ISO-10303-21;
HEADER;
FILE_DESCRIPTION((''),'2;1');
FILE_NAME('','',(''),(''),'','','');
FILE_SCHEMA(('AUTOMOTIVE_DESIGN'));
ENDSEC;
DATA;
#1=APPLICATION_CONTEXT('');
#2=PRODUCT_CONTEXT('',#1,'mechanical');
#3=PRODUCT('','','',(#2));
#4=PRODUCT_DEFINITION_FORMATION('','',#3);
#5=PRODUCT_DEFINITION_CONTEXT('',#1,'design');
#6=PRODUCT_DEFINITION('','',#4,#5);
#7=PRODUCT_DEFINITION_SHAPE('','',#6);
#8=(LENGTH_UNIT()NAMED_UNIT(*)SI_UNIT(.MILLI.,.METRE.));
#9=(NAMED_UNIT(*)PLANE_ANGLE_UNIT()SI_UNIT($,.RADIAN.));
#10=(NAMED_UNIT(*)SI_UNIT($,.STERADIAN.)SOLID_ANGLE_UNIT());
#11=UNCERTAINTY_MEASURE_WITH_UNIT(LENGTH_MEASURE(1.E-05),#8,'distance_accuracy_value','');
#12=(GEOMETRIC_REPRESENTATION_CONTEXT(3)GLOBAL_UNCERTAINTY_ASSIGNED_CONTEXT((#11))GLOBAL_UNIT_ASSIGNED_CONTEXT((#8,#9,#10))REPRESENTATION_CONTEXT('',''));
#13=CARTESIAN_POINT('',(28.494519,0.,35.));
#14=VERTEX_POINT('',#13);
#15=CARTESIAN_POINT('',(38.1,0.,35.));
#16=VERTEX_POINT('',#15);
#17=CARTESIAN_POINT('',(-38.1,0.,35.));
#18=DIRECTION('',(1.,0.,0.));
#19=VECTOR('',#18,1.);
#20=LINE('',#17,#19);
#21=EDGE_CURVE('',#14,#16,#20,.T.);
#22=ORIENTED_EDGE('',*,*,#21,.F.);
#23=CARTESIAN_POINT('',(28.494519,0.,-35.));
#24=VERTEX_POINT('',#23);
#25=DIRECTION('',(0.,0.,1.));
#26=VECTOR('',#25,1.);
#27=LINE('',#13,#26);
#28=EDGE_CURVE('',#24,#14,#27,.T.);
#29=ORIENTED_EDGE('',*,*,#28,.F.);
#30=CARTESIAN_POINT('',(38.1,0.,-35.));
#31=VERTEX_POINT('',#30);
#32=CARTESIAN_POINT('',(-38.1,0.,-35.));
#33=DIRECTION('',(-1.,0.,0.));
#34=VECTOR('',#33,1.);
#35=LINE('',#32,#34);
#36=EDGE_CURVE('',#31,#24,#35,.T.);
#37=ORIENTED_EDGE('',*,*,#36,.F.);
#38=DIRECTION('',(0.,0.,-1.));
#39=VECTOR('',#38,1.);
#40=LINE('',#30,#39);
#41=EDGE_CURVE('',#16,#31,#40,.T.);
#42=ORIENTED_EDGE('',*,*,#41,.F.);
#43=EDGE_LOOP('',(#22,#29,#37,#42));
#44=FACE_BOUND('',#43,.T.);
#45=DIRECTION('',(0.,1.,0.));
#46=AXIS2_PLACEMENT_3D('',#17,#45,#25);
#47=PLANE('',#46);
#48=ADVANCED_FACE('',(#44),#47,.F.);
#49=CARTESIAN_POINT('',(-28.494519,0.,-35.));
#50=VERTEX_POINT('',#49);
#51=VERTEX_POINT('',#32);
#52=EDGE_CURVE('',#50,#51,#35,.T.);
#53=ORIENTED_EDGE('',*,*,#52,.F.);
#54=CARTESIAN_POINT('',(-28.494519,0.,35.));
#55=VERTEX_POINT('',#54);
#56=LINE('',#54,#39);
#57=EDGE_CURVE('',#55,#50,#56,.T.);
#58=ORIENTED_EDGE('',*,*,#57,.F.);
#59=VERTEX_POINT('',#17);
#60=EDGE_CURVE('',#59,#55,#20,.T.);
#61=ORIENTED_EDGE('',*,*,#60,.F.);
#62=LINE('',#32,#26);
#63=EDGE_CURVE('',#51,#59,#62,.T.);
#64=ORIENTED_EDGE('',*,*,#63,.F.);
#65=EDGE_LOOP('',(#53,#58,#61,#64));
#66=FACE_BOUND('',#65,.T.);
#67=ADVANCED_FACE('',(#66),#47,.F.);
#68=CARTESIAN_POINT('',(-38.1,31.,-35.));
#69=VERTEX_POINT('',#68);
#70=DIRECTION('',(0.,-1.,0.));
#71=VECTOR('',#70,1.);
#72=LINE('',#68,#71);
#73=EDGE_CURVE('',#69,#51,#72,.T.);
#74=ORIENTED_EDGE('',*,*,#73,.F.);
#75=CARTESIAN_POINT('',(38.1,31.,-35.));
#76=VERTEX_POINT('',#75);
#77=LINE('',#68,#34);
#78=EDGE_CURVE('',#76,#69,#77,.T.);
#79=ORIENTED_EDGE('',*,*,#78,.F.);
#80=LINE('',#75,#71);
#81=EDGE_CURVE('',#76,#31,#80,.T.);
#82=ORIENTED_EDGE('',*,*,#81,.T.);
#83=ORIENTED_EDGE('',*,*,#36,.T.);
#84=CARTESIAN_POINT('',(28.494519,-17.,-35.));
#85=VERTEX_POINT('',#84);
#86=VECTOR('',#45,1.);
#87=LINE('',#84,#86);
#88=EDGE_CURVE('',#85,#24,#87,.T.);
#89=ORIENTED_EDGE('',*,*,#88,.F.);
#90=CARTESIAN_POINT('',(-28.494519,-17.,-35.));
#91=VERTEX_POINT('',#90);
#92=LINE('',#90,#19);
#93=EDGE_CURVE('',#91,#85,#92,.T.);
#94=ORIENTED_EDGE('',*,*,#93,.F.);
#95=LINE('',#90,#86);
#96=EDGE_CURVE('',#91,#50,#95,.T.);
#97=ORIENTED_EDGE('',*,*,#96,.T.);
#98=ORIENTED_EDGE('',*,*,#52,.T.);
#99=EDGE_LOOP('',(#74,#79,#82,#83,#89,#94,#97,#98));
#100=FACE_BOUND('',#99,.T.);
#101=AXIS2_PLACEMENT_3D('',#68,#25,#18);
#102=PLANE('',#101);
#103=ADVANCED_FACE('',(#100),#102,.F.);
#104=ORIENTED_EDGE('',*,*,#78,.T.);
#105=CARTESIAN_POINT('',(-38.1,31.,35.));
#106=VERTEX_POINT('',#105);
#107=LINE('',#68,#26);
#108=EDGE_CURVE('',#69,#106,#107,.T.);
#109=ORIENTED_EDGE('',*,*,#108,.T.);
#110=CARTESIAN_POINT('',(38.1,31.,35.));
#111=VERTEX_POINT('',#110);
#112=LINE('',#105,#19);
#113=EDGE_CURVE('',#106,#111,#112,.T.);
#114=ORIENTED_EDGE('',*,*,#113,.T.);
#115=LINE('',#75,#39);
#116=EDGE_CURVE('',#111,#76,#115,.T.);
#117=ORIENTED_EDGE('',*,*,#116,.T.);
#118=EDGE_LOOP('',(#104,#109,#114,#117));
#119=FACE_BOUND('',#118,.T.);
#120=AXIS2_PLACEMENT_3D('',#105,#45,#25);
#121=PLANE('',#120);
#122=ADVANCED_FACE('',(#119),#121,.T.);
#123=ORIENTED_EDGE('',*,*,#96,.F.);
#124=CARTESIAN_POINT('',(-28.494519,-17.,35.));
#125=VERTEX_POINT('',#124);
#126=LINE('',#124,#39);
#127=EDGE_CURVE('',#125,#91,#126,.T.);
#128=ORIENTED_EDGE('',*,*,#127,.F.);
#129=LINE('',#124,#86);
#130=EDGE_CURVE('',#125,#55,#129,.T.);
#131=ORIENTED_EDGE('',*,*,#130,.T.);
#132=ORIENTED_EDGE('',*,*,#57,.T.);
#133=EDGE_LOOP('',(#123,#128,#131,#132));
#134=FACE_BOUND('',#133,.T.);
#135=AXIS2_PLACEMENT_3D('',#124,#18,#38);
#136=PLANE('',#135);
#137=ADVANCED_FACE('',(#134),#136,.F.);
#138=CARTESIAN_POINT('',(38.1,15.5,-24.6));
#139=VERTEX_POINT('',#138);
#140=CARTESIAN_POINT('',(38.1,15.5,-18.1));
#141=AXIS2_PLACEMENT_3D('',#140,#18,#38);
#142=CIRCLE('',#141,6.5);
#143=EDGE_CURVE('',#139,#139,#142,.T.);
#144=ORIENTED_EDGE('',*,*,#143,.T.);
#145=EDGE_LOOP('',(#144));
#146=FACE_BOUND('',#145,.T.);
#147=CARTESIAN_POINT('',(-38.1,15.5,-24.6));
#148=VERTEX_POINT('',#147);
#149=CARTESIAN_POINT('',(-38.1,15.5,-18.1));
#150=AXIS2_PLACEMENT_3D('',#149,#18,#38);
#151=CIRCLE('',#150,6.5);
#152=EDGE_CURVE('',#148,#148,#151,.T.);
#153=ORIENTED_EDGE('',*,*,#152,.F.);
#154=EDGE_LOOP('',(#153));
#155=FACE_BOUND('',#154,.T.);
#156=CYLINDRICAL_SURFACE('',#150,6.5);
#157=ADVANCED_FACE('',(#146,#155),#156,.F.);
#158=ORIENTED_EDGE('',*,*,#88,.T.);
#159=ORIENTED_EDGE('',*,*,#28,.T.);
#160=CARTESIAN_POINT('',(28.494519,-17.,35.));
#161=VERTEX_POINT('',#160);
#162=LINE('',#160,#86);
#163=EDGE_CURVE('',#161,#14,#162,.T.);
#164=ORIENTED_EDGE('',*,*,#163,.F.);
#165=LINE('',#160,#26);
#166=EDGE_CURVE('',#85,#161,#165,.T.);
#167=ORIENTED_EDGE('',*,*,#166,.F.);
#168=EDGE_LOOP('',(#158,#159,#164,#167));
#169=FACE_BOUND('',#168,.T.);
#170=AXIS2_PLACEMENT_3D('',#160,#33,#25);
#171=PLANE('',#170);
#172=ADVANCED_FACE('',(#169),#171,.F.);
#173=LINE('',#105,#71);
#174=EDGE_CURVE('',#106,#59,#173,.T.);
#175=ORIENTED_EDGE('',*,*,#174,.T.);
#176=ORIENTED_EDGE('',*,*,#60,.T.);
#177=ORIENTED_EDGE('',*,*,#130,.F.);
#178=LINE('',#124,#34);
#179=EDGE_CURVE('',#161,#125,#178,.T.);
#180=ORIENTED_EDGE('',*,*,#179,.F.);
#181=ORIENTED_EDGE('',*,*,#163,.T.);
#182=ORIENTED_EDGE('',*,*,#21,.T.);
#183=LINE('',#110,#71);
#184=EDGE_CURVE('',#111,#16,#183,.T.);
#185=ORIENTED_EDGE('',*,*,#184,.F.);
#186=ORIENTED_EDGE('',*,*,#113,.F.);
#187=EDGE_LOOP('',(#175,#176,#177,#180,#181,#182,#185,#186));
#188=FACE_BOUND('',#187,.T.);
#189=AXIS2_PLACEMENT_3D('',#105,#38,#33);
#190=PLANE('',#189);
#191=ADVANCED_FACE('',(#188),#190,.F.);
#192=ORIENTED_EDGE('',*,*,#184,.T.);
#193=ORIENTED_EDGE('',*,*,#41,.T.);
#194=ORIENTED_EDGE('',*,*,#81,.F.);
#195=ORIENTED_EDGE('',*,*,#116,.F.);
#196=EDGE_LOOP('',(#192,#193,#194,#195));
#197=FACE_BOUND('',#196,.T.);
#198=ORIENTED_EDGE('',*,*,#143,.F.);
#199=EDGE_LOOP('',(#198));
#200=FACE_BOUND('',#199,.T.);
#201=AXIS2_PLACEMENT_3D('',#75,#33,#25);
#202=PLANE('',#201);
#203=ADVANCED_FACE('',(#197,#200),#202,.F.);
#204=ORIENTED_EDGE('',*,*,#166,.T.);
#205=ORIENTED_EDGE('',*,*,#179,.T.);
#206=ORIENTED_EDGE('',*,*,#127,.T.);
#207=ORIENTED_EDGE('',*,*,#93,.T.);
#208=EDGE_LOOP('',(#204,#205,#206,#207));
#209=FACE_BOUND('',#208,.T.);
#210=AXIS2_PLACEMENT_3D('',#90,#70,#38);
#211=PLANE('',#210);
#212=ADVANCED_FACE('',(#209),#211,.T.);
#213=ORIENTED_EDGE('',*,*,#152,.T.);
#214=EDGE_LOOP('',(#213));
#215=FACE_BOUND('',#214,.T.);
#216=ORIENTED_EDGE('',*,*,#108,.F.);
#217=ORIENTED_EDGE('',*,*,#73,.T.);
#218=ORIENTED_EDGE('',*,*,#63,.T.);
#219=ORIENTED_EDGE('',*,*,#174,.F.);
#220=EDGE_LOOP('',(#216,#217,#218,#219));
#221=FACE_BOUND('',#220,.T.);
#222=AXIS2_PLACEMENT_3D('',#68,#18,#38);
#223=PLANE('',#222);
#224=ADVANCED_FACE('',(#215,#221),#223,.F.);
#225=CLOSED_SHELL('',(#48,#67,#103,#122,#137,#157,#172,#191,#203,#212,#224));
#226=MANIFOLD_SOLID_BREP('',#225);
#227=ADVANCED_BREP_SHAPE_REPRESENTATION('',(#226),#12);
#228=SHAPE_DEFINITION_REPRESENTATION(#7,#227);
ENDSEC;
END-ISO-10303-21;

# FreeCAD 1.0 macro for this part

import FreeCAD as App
import Part
import Sketcher

V = App.Vector
Q = App.Units.Quantity

doc = App.newDocument("Part")
params = doc.addObject("Spreadsheet::Sheet", "Params")
for row, (alias, value) in enumerate([
    ("sketch1_height", "70 mm"),
    ("sketch1_width", "76.2 mm"),
    ("pad1_length", "31 mm"),
    ("sketch2_diameter", "13 mm"),
    ("sketch3_height", "70 mm"),
    ("pad2_length", "17 mm"),
], start=1):
    params.set(f"A{row}", alias)
    params.set(f"B{row}", "=" + value)
    params.setAlias(f"B{row}", alias)

body = doc.addObject("PartDesign::Body", "Body")

sketch1 = body.newObject("Sketcher::SketchObject", "Sketch")
sketch1.AttachmentSupport = (doc.getObject("XZ_Plane"), [""])
sketch1.MapMode = "FlatFace"
sketch1.addGeometry([
    Part.LineSegment(V(-38, -35, 0), V(-38, 35, 0)),
    Part.LineSegment(V(-38, 35, 0), V(38, 35, 0)),
    Part.LineSegment(V(38, 35, 0), V(38, -35, 0)),
    Part.LineSegment(V(38, -35, 0), V(-38, -35, 0)),
], False)
sketch1.addConstraint([
    Sketcher.Constraint("Coincident", 0, 2, 1, 1),
    Sketcher.Constraint("Coincident", 1, 2, 2, 1),
    Sketcher.Constraint("Coincident", 2, 2, 3, 1),
    Sketcher.Constraint("Coincident", 3, 2, 0, 1),
    Sketcher.Constraint("Vertical", 0),
    Sketcher.Constraint("Horizontal", 1),
    Sketcher.Constraint("Vertical", 2),
    Sketcher.Constraint("Horizontal", 3),
    Sketcher.Constraint("Symmetric", 0, 2, 2, 2, -1, 1),
    Sketcher.Constraint("DistanceY", 0, 1, 0, 2, Q("70 mm")),
    Sketcher.Constraint("DistanceX", 1, 1, 1, 2, Q("76.2 mm")),
])
sketch1.setExpression("Constraints[9]", "Params.sketch1_height")
sketch1.setExpression("Constraints[10]", "Params.sketch1_width")
pad1 = body.newObject("PartDesign::Pad", "Pad")
pad1.Profile = sketch1
pad1.setExpression("Length", "Params.pad1_length")
pad1.Reversed = True

sketch2 = body.newObject("Sketcher::SketchObject", "Sketch001")
sketch2.AttachmentSupport = (doc.getObject("YZ_Plane"), [""])
sketch2.MapMode = "FlatFace"
sketch2.AttachmentOffset = App.Placement(V(0, 0, 38.1), App.Rotation())
sketch2.addGeometry(Part.Circle(V(16, -18, 0), V(0, 0, 1), 6), False)
sketch2.addConstraint([
    Sketcher.Constraint("Diameter", 0, Q("13 mm")),
    Sketcher.Constraint("DistanceX", -1, 1, 0, 3, Q("15.5 mm")),
    Sketcher.Constraint("DistanceY", 0, 3, -1, 1, Q("18.1 mm")),
])
sketch2.setExpression("Constraints[0]", "Params.sketch2_diameter")
pocket1 = body.newObject("PartDesign::Pocket", "Pocket")
pocket1.Profile = sketch2
pocket1.Type = "ThroughAll"

sketch3 = body.newObject("Sketcher::SketchObject", "Sketch002")
sketch3.AttachmentSupport = (doc.getObject("XZ_Plane"), [""])
sketch3.MapMode = "FlatFace"
sketch3.addGeometry([
    Part.LineSegment(V(-28, 35, 0), V(-28, -35, 0)),
    Part.LineSegment(V(-28, -35, 0), V(28, -35, 0)),
    Part.LineSegment(V(28, -35, 0), V(28, 35, 0)),
    Part.LineSegment(V(28, 35, 0), V(-28, 35, 0)),
], False)
sketch3.addConstraint([
    Sketcher.Constraint("Coincident", 0, 2, 1, 1),
    Sketcher.Constraint("Coincident", 1, 2, 2, 1),
    Sketcher.Constraint("Coincident", 2, 2, 3, 1),
    Sketcher.Constraint("Coincident", 3, 2, 0, 1),
    Sketcher.Constraint("Vertical", 0),
    Sketcher.Constraint("Horizontal", 1),
    Sketcher.Constraint("Vertical", 2),
    Sketcher.Constraint("Horizontal", 3),
    Sketcher.Constraint("Symmetric", 0, 2, 2, 2, -1, 1),
    Sketcher.Constraint("DistanceY", 0, 2, 0, 1, Q("70 mm")),
    Sketcher.Constraint("DistanceX", 1, 1, 1, 2, Q("56.989038 mm")),
])
sketch3.setExpression("Constraints[9]", "Params.sketch3_height")
pad2 = body.newObject("PartDesign::Pad", "Pad001")
pad2.Profile = sketch3
pad2.setExpression("Length", "Params.pad2_length")

doc.recompute()
